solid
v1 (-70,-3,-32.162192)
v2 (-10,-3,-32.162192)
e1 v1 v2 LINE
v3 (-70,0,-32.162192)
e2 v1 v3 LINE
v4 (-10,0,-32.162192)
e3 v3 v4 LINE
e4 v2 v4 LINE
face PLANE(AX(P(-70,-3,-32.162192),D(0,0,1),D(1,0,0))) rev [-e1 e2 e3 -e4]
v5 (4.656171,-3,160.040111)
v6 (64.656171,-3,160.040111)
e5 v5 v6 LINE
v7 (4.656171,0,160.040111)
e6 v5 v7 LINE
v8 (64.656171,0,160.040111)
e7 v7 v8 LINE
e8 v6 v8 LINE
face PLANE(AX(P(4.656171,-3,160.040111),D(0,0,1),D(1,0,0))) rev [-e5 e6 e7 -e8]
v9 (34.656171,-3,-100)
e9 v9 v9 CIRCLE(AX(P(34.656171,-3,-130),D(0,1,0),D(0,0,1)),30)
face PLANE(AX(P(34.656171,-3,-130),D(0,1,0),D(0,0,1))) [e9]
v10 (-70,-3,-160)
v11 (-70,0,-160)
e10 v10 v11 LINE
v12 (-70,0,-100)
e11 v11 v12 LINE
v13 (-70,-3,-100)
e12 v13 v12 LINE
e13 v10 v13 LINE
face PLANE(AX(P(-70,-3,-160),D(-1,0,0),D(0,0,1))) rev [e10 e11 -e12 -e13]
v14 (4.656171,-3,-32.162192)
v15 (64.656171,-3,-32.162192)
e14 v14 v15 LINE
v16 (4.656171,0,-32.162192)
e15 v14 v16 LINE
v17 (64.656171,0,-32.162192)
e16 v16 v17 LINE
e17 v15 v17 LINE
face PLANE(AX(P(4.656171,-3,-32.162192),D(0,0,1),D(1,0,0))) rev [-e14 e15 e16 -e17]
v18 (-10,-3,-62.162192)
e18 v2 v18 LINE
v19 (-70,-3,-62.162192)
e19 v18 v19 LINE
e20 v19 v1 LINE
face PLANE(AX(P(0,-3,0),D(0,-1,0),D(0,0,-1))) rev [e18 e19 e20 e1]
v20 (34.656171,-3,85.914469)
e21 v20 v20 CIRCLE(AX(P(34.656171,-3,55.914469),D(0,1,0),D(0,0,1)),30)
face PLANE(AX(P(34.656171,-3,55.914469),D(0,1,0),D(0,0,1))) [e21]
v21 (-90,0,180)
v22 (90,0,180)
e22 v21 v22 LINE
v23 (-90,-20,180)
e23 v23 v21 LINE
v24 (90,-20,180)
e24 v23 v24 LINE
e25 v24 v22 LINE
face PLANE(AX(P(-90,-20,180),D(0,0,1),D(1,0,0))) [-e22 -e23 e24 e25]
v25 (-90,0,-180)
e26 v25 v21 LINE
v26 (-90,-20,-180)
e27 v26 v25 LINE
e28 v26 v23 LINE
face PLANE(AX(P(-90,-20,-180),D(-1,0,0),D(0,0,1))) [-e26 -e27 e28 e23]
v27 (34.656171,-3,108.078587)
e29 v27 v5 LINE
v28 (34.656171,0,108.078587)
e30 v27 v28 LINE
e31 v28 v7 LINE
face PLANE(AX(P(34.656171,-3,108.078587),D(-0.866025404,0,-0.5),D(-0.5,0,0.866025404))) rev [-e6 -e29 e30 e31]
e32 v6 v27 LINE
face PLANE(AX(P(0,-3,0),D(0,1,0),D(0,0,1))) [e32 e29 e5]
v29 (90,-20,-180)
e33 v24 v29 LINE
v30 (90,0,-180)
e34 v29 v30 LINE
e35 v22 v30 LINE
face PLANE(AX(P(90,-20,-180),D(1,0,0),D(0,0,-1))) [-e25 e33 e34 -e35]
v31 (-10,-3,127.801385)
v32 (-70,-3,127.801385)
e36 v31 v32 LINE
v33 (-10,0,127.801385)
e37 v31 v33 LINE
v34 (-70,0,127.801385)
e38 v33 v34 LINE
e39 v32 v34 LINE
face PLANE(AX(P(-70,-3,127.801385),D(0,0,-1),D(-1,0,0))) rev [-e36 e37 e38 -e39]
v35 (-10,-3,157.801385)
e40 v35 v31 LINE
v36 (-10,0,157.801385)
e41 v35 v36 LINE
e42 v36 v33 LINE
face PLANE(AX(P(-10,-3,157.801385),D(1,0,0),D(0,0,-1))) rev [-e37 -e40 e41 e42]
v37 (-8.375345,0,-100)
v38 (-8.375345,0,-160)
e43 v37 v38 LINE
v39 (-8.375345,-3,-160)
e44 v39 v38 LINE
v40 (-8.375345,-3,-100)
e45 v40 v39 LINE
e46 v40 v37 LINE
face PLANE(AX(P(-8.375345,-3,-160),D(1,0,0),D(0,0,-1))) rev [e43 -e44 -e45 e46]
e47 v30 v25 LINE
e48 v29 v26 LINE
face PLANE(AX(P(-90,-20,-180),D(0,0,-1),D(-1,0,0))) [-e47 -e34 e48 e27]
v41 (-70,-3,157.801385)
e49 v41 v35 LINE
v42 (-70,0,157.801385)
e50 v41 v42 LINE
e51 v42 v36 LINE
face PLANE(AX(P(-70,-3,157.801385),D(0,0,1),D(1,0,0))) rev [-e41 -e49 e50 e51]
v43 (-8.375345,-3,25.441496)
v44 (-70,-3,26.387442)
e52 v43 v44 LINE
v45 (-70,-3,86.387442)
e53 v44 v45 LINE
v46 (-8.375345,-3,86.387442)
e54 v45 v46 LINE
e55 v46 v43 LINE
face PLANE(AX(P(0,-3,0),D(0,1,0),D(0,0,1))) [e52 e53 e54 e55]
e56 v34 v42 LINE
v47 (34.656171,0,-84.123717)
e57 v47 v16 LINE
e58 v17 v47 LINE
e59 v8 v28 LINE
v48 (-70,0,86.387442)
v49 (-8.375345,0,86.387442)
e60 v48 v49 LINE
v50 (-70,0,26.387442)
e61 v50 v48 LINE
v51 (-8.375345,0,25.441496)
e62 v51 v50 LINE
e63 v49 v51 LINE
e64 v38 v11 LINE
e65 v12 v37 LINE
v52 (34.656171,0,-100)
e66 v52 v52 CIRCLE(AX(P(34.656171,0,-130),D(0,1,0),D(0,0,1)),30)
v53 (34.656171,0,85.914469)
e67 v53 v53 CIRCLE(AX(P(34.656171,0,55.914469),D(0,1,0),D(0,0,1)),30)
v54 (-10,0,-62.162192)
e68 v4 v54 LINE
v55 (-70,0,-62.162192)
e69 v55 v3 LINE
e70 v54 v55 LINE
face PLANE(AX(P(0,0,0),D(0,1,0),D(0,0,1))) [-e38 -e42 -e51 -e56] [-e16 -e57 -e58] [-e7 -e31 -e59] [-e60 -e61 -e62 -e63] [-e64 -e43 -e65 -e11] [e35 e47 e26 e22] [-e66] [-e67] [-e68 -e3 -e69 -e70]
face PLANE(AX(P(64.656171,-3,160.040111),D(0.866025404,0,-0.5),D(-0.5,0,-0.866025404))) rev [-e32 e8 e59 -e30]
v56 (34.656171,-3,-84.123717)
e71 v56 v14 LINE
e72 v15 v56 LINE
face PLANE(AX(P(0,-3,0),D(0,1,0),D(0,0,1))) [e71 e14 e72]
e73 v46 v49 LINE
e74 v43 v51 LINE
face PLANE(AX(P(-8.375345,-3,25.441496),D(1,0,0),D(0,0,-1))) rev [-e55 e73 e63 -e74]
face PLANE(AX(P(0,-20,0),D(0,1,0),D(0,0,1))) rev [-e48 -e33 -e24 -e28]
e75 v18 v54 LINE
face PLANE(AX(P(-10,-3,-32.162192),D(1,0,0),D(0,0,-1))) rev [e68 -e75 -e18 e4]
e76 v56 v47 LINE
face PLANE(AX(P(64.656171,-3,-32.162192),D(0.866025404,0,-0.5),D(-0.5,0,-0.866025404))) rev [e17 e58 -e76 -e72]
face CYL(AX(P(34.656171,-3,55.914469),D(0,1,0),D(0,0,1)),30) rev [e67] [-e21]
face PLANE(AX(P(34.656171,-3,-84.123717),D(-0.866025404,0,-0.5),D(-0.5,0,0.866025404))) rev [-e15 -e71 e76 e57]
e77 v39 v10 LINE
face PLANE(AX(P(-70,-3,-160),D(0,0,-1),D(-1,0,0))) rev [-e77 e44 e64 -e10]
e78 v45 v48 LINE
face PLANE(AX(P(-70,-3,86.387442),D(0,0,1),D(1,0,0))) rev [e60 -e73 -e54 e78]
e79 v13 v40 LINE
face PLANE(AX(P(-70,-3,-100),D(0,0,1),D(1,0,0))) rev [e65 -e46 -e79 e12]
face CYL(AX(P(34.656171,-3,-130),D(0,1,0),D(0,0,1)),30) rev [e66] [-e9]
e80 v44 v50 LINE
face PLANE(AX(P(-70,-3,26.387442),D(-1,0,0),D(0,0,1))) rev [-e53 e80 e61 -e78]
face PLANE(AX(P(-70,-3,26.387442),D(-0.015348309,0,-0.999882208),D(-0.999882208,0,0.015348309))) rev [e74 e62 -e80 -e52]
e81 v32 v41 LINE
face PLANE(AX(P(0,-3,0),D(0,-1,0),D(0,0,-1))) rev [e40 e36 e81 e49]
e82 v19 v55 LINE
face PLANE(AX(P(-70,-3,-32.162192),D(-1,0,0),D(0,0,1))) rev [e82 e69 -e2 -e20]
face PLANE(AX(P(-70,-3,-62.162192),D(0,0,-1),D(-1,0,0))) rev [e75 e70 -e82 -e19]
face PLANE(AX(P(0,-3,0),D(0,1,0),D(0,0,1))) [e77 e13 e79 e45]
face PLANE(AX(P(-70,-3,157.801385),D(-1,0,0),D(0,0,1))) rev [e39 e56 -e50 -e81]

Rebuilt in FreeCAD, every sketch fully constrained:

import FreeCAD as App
import Part
import Sketcher

V = App.Vector
Q = App.Units.Quantity


def add_polygon(sketch, points):
    """Adds a closed chain of lines whose ends are joined by coincident constraints."""
    first, n = sketch.GeometryCount, len(points)
    for a, b in zip(points, points[1:] + points[:1]):
        sketch.addGeometry(Part.LineSegment(App.Vector(*a, 0), App.Vector(*b, 0)), False)
    for i in range(n):
        sketch.addConstraint(Sketcher.Constraint("Coincident", first + i, 2, first + (i + 1) % n, 1))

doc = App.newDocument("Part")
body = doc.addObject("PartDesign::Body", "Body")

sketch1 = body.newObject("Sketcher::SketchObject", "Sketch")
sketch1.AttachmentSupport = (doc.getObject("XZ_Plane"), [""])
sketch1.MapMode = "FlatFace"
add_polygon(sketch1, [(-90, -180), (-90, 180), (90, 180), (90, -180)])
sketch1.addConstraint(Sketcher.Constraint("Vertical", 0))
sketch1.addConstraint(Sketcher.Constraint("Horizontal", 1))
sketch1.addConstraint(Sketcher.Constraint("Vertical", 2))
sketch1.addConstraint(Sketcher.Constraint("Horizontal", 3))
sketch1.addConstraint(Sketcher.Constraint("Symmetric", 0, 2, 2, 2, -1, 1))
sketch1.addConstraint(Sketcher.Constraint("DistanceX", 1, 1, 1, 2, 180.0))
sketch1.addConstraint(Sketcher.Constraint("DistanceY", 0, 1, 0, 2, 360.0))
pad1 = body.newObject("PartDesign::Pad", "Pad")
pad1.Profile = sketch1
pad1.Length = 20

sketch2 = body.newObject("Sketcher::SketchObject", "Sketch001")
sketch2.AttachmentSupport = (doc.getObject("XZ_Plane"), [""])
sketch2.MapMode = "FlatFace"
sketch2.addGeometry(Part.Circle(V(35, -130, 0), V(0, 0, 1), 30), False)
sketch2.addGeometry(Part.Circle(V(35, 56, 0), V(0, 0, 1), 30), False)
add_polygon(sketch2, [(-70, -62), (-70, -32), (-10, -32), (-10, -62)])
add_polygon(sketch2, [(-70, -160), (-70, -100), (-8, -100), (-8, -160)])
add_polygon(sketch2, [(5, -32), (65, -32), (35, -84)])
add_polygon(sketch2, [(5, 160), (65, 160), (35, 108)])
add_polygon(sketch2, [(-70, 128), (-70, 158), (-10, 158), (-10, 128)])
add_polygon(sketch2, [(-8, 86), (-8, 25), (-70, 26), (-70, 86)])
sketch2.addConstraint(Sketcher.Constraint("Vertical", 2))
sketch2.addConstraint(Sketcher.Constraint("Horizontal", 3))
sketch2.addConstraint(Sketcher.Constraint("Vertical", 4))
sketch2.addConstraint(Sketcher.Constraint("Horizontal", 5))
sketch2.addConstraint(Sketcher.Constraint("Vertical", 6))
sketch2.addConstraint(Sketcher.Constraint("Horizontal", 7))
sketch2.addConstraint(Sketcher.Constraint("Vertical", 8))
sketch2.addConstraint(Sketcher.Constraint("Horizontal", 9))
sketch2.addConstraint(Sketcher.Constraint("Horizontal", 10))
sketch2.addConstraint(Sketcher.Constraint("Horizontal", 13))
sketch2.addConstraint(Sketcher.Constraint("Vertical", 16))
sketch2.addConstraint(Sketcher.Constraint("Horizontal", 17))
sketch2.addConstraint(Sketcher.Constraint("Vertical", 18))
sketch2.addConstraint(Sketcher.Constraint("Horizontal", 19))
sketch2.addConstraint(Sketcher.Constraint("Vertical", 20))
sketch2.addConstraint(Sketcher.Constraint("Vertical", 22))
sketch2.addConstraint(Sketcher.Constraint("Horizontal", 23))
sketch2.addConstraint(Sketcher.Constraint("Equal", 0, 1))
sketch2.addConstraint(Sketcher.Constraint("Parallel", 11, 14))
sketch2.addConstraint(Sketcher.Constraint("Parallel", 12, 15))
sketch2.addConstraint(Sketcher.Constraint("Horizontal", 3, 2, 10, 2))
sketch2.addConstraint(Sketcher.Constraint("Vertical", 0, 3, 1, 3))
sketch2.addConstraint(Sketcher.Constraint("Vertical", 5, 2, 6, 2))
sketch2.addConstraint(Sketcher.Constraint("Vertical", 1, 3, 11, 2))
sketch2.addConstraint(Sketcher.Constraint("Vertical", 10, 2, 13, 2))
sketch2.addConstraint(Sketcher.Constraint("Vertical", 11, 2, 14, 2))
sketch2.addConstraint(Sketcher.Constraint("Vertical", 9, 2, 16, 2))
sketch2.addConstraint(Sketcher.Constraint("Vertical", 4, 2, 17, 2))
sketch2.addConstraint(Sketcher.Constraint("Vertical", 8, 2, 20, 2))
sketch2.addConstraint(Sketcher.Constraint("Vertical", 19, 2, 21, 2))
sketch2.addConstraint(Sketcher.Constraint("Equal", 5, 10))
sketch2.addConstraint(Sketcher.Constraint("Equal", 19, 6))
sketch2.addConstraint(Sketcher.Constraint("Equal", 4, 16))
sketch2.addConstraint(Sketcher.Constraint("Equal", 8, 22))
sketch2.addConstraint(Sketcher.Constraint("Equal", 11, 12))
sketch2.addConstraint(Sketcher.Constraint("Diameter", 0, 60.0))
sketch2.addConstraint(Sketcher.Constraint("DistanceX", 3, 1, 3, 2, 60.0))
sketch2.addConstraint(Sketcher.Constraint("DistanceY", 2, 1, 2, 2, 30.0))
sketch2.addConstraint(Sketcher.Constraint("Angle", 11, Q("-120 deg")))
sketch2.addConstraint(Sketcher.Constraint("DistanceY", 0, 3, -1, 1, 130.0))
sketch2.addConstraint(Sketcher.Constraint("DistanceX", 2, 2, -1, 1, 70.0))
sketch2.addConstraint(Sketcher.Constraint("DistanceY", 6, 2, -1, 1, 100.0))
sketch2.addConstraint(Sketcher.Constraint("DistanceY", 14, 2, 16, 2, 49.722798))
sketch2.addConstraint(Sketcher.Constraint("DistanceX", 7, 1, 7, 2, 61.624655))
sketch2.addConstraint(Sketcher.Constraint("DistanceY", 20, 2, 20, 1, 60.945946))
sketch2.addConstraint(Sketcher.Constraint("DistanceX", -1, 1, 0, 3, 34.656171))
sketch2.addConstraint(Sketcher.Constraint("DistanceY", -1, 1, 1, 3, 55.914469))
sketch2.addConstraint(Sketcher.Constraint("DistanceY", -1, 1, 13, 2, 160.040111))
sketch2.addConstraint(Sketcher.Constraint("DistanceY", -1, 1, 21, 2, 26.387442))
sketch2.addConstraint(Sketcher.Constraint("DistanceY", 2, 2, 1, 3, 88.076661))
pocket1 = body.newObject("PartDesign::Pocket", "Pocket")
pocket1.Profile = sketch2
pocket1.Length = 3
pocket1.Reversed = True

doc.recompute()
